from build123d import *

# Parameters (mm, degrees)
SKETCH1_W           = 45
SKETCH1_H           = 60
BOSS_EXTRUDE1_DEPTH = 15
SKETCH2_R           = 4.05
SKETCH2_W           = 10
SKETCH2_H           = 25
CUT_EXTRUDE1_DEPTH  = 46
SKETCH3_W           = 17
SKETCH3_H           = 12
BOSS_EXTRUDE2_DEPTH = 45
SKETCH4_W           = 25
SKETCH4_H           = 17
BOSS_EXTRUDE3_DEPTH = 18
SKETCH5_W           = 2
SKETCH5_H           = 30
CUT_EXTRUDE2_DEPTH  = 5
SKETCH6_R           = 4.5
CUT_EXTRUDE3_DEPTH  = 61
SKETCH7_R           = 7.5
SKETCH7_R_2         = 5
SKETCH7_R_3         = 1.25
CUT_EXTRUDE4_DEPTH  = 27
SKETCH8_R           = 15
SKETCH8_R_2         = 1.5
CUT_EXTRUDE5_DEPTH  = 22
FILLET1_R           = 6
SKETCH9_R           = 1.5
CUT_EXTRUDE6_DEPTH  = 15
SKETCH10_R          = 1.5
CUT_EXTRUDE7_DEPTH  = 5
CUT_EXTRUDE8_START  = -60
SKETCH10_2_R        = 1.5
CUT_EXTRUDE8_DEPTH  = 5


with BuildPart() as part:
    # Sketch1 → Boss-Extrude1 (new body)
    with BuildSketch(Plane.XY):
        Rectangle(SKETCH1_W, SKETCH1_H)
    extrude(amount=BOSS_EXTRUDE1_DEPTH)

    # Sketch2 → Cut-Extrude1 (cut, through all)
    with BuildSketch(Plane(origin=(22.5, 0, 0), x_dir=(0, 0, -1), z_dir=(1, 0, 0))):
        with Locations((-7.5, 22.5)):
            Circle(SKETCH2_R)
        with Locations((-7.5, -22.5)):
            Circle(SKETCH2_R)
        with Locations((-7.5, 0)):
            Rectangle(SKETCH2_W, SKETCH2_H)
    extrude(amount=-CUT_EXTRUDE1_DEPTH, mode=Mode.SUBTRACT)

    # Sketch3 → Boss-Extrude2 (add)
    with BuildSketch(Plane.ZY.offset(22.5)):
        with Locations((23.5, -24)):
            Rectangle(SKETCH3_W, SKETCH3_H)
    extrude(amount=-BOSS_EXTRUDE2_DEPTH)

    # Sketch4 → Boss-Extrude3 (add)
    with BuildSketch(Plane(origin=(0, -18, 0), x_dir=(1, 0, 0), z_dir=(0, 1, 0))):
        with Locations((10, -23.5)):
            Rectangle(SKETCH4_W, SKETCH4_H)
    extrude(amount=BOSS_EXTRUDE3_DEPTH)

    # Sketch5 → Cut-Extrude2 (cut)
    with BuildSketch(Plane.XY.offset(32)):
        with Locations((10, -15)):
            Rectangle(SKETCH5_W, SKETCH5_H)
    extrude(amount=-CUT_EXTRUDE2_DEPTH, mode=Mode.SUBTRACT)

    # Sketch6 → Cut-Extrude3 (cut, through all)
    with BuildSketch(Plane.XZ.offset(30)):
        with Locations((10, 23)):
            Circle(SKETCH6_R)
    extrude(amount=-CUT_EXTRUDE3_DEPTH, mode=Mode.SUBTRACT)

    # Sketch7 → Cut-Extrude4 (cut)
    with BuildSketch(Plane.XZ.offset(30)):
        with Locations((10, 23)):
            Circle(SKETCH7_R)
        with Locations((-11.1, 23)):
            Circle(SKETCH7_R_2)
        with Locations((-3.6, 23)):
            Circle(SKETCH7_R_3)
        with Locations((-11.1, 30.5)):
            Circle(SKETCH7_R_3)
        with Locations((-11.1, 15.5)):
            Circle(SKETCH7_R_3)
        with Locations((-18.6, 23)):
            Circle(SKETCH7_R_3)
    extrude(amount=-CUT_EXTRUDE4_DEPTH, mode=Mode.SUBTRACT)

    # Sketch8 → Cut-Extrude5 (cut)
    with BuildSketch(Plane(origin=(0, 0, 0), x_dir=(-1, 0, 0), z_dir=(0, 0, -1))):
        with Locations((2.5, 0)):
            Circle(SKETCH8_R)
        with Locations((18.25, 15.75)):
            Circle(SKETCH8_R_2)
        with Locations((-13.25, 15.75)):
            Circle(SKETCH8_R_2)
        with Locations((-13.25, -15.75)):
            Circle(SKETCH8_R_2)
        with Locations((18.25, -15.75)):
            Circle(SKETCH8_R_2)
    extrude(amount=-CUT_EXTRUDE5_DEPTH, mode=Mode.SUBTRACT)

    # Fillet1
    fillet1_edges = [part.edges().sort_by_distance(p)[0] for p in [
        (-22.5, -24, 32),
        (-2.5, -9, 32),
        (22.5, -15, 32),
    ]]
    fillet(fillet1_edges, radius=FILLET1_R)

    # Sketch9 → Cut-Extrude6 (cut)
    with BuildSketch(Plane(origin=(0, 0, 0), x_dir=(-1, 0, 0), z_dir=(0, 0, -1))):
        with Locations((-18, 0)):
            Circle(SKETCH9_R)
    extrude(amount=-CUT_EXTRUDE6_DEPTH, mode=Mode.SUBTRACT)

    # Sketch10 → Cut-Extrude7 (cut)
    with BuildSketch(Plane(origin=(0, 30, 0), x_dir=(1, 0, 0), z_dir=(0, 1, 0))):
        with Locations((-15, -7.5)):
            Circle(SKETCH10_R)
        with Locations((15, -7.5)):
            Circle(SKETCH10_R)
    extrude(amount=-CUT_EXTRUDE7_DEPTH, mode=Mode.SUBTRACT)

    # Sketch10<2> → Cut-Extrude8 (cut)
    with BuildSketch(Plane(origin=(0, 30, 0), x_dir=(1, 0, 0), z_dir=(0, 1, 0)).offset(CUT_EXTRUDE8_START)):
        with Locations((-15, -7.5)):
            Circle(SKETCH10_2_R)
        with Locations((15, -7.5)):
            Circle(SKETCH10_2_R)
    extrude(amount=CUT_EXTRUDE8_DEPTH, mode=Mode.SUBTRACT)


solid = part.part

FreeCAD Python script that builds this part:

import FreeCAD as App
import Part
import Sketcher

V = App.Vector


def edges_at(feature, points):
    """Names of the edges that pass closest to the given points."""
    edges = feature.Shape.Edges
    near = lambda p: min(range(len(edges)), key=lambda i: edges[i].distToShape(Part.Vertex(*p))[0])
    return sorted({f"Edge{near(p) + 1}" for p in points})

doc = App.newDocument("Part")
body = doc.addObject("PartDesign::Body", "Body")

# Sketch on XY plane
sketch1 = doc.addObject("Sketcher::SketchObject", "Sketch")
body.addObject(sketch1)
sketch1.AttachmentSupport = (doc.XY_Plane, [""])
sketch1.MapMode = "FlatFace"
sketch1.addGeometry(Part.LineSegment(V(-22, 30, 0), V(-22, -30, 0)), False)
sketch1.addGeometry(Part.LineSegment(V(-22, -30, 0), V(22, -30, 0)), False)
sketch1.addGeometry(Part.LineSegment(V(22, -30, 0), V(22, 30, 0)), False)
sketch1.addGeometry(Part.LineSegment(V(22, 30, 0), V(-22, 30, 0)), False)
sketch1.addConstraint(Sketcher.Constraint("Coincident", 0, 2, 1, 1))
sketch1.addConstraint(Sketcher.Constraint("Coincident", 1, 2, 2, 1))
sketch1.addConstraint(Sketcher.Constraint("Coincident", 2, 2, 3, 1))
sketch1.addConstraint(Sketcher.Constraint("Coincident", 3, 2, 0, 1))
sketch1.addConstraint(Sketcher.Constraint("Vertical", 0))
sketch1.addConstraint(Sketcher.Constraint("Horizontal", 1))
sketch1.addConstraint(Sketcher.Constraint("Vertical", 2))
sketch1.addConstraint(Sketcher.Constraint("Horizontal", 3))
sketch1.addConstraint(Sketcher.Constraint("Symmetric", 0, 2, 2, 2, -1, 1))
sketch1.addConstraint(Sketcher.Constraint("DistanceX", 1, 1, 1, 2, 45.0))
sketch1.addConstraint(Sketcher.Constraint("DistanceY", 0, 2, 0, 1, 60.0))
pad1 = doc.addObject("PartDesign::Pad", "Pad")
body.addObject(pad1)
pad1.Profile = sketch1
pad1.Length = 15

# Sketch on YZ plane
sketch2 = doc.addObject("Sketcher::SketchObject", "Sketch001")
body.addObject(sketch2)
sketch2.AttachmentSupport = (doc.YZ_Plane, [""])
sketch2.MapMode = "FlatFace"
sketch2.AttachmentOffset = App.Placement(V(0, 0, 22.5), App.Rotation())
sketch2.addGeometry(Part.Circle(V(22.5, 7.5, 0), V(0, 0, 1), 4), False)
sketch2.addGeometry(Part.Circle(V(-22.5, 7.5, 0), V(0, 0, 1), 4), False)
sketch2.addGeometry(Part.LineSegment(V(12.5, 12.5, 0), V(-12.5, 12.5, 0)), False)
sketch2.addGeometry(Part.LineSegment(V(-12.5, 12.5, 0), V(-12.5, 2.5, 0)), False)
sketch2.addGeometry(Part.LineSegment(V(-12.5, 2.5, 0), V(12.5, 2.5, 0)), False)
sketch2.addGeometry(Part.LineSegment(V(12.5, 2.5, 0), V(12.5, 12.5, 0)), False)
sketch2.addConstraint(Sketcher.Constraint("Coincident", 2, 2, 3, 1))
sketch2.addConstraint(Sketcher.Constraint("Coincident", 3, 2, 4, 1))
sketch2.addConstraint(Sketcher.Constraint("Coincident", 4, 2, 5, 1))
sketch2.addConstraint(Sketcher.Constraint("Coincident", 5, 2, 2, 1))
sketch2.addConstraint(Sketcher.Constraint("Horizontal", 2))
sketch2.addConstraint(Sketcher.Constraint("Vertical", 3))
sketch2.addConstraint(Sketcher.Constraint("Horizontal", 4))
sketch2.addConstraint(Sketcher.Constraint("Vertical", 5))
sketch2.addConstraint(Sketcher.Constraint("Equal", 0, 1))
sketch2.addConstraint(Sketcher.Constraint("Symmetric", 0, 3, 1, 3, -2))
sketch2.addConstraint(Sketcher.Constraint("Diameter", 0, 8.1))
sketch2.addConstraint(Sketcher.Constraint("DistanceX", 2, 2, 2, 1, 25.0))
sketch2.addConstraint(Sketcher.Constraint("DistanceY", 3, 2, 3, 1, 10.0))
sketch2.addConstraint(Sketcher.Constraint("DistanceX", 1, 3, 0, 3, 45.0))
sketch2.addConstraint(Sketcher.Constraint("DistanceX", 1, 3, 2, 2, 10.0))
sketch2.addConstraint(Sketcher.Constraint("DistanceY", 1, 3, 2, 2, 5.0))
sketch2.addConstraint(Sketcher.Constraint("DistanceY", -1, 1, 0, 3, 7.5))
pocket1 = doc.addObject("PartDesign::Pocket", "Pocket")
body.addObject(pocket1)
pocket1.Profile = sketch2
pocket1.Type = "ThroughAll"

# Sketch on YZ plane
sketch3 = doc.addObject("Sketcher::SketchObject", "Sketch002")
body.addObject(sketch3)
sketch3.AttachmentSupport = (doc.YZ_Plane, [""])
sketch3.MapMode = "FlatFace"
sketch3.AttachmentOffset = App.Placement(V(0, 0, -22.5), App.Rotation())
sketch3.addGeometry(Part.LineSegment(V(-18, 15, 0), V(-30, 15, 0)), False)
sketch3.addGeometry(Part.LineSegment(V(-30, 15, 0), V(-30, 32, 0)), False)
sketch3.addGeometry(Part.LineSegment(V(-30, 32, 0), V(-18, 32, 0)), False)
sketch3.addGeometry(Part.LineSegment(V(-18, 32, 0), V(-18, 15, 0)), False)
sketch3.addConstraint(Sketcher.Constraint("Coincident", 0, 2, 1, 1))
sketch3.addConstraint(Sketcher.Constraint("Coincident", 1, 2, 2, 1))
sketch3.addConstraint(Sketcher.Constraint("Coincident", 2, 2, 3, 1))
sketch3.addConstraint(Sketcher.Constraint("Coincident", 3, 2, 0, 1))
sketch3.addConstraint(Sketcher.Constraint("Horizontal", 0))
sketch3.addConstraint(Sketcher.Constraint("Vertical", 1))
sketch3.addConstraint(Sketcher.Constraint("Horizontal", 2))
sketch3.addConstraint(Sketcher.Constraint("Vertical", 3))
sketch3.addConstraint(Sketcher.Constraint("DistanceX", 0, 2, 0, 1, 12.0))
sketch3.addConstraint(Sketcher.Constraint("DistanceY", 1, 1, 1, 2, 17.0))
sketch3.addConstraint(Sketcher.Constraint("DistanceX", 0, 2, -1, 1, 30.0))
sketch3.addConstraint(Sketcher.Constraint("DistanceY", -1, 1, 0, 2, 15.0))
pad2 = doc.addObject("PartDesign::Pad", "Pad001")
body.addObject(pad2)
pad2.Profile = sketch3
pad2.Length = 45

# Sketch on XZ plane
sketch4 = doc.addObject("Sketcher::SketchObject", "Sketch003")
body.addObject(sketch4)
sketch4.AttachmentSupport = (doc.XZ_Plane, [""])
sketch4.MapMode = "FlatFace"
sketch4.AttachmentOffset = App.Placement(V(0, 0, 18), App.Rotation())
sketch4.addGeometry(Part.LineSegment(V(-2, 15, 0), V(-2, 32, 0)), False)
sketch4.addGeometry(Part.LineSegment(V(-2, 32, 0), V(22, 32, 0)), False)
sketch4.addGeometry(Part.LineSegment(V(22, 32, 0), V(22, 15, 0)), False)
sketch4.addGeometry(Part.LineSegment(V(22, 15, 0), V(-2, 15, 0)), False)
sketch4.addConstraint(Sketcher.Constraint("Coincident", 0, 2, 1, 1))
sketch4.addConstraint(Sketcher.Constraint("Coincident", 1, 2, 2, 1))
sketch4.addConstraint(Sketcher.Constraint("Coincident", 2, 2, 3, 1))
sketch4.addConstraint(Sketcher.Constraint("Coincident", 3, 2, 0, 1))
sketch4.addConstraint(Sketcher.Constraint("Vertical", 0))
sketch4.addConstraint(Sketcher.Constraint("Horizontal", 1))
sketch4.addConstraint(Sketcher.Constraint("Vertical", 2))
sketch4.addConstraint(Sketcher.Constraint("Horizontal", 3))
sketch4.addConstraint(Sketcher.Constraint("DistanceX", 1, 1, 1, 2, 25.0))
sketch4.addConstraint(Sketcher.Constraint("DistanceY", 0, 1, 0, 2, 17.0))
sketch4.addConstraint(Sketcher.Constraint("DistanceY", -1, 1, 0, 2, 32.0))
sketch4.addConstraint(Sketcher.Constraint("DistanceX", 0, 2, -1, 1, 2.5))
pad3 = doc.addObject("PartDesign::Pad", "Pad002")
body.addObject(pad3)
pad3.Profile = sketch4
pad3.Length = 18
pad3.Reversed = True

# Sketch on XY plane
sketch5 = doc.addObject("Sketcher::SketchObject", "Sketch004")
body.addObject(sketch5)
sketch5.AttachmentSupport = (doc.XY_Plane, [""])
sketch5.MapMode = "FlatFace"
sketch5.AttachmentOffset = App.Placement(V(0, 0, 32), App.Rotation())
sketch5.addGeometry(Part.LineSegment(V(9, 0, 0), V(9, -30, 0)), False)
sketch5.addGeometry(Part.LineSegment(V(9, -30, 0), V(11, -30, 0)), False)
sketch5.addGeometry(Part.LineSegment(V(11, -30, 0), V(11, 0, 0)), False)
sketch5.addGeometry(Part.LineSegment(V(11, 0, 0), V(9, 0, 0)), False)
sketch5.addConstraint(Sketcher.Constraint("Coincident", 0, 2, 1, 1))
sketch5.addConstraint(Sketcher.Constraint("Coincident", 1, 2, 2, 1))
sketch5.addConstraint(Sketcher.Constraint("Coincident", 2, 2, 3, 1))
sketch5.addConstraint(Sketcher.Constraint("Coincident", 3, 2, 0, 1))
sketch5.addConstraint(Sketcher.Constraint("Vertical", 0))
sketch5.addConstraint(Sketcher.Constraint("Horizontal", 1))
sketch5.addConstraint(Sketcher.Constraint("Vertical", 2))
sketch5.addConstraint(Sketcher.Constraint("Horizontal", 3))
sketch5.addConstraint(Sketcher.Constraint("PointOnObject", 2, 2, -1))
sketch5.addConstraint(Sketcher.Constraint("DistanceX", 1, 1, 1, 2, 2.0))
sketch5.addConstraint(Sketcher.Constraint("DistanceY", 0, 2, 0, 1, 30.0))
sketch5.addConstraint(Sketcher.Constraint("DistanceX", -1, 1, 0, 2, 9.0))
pocket2 = doc.addObject("PartDesign::Pocket", "Pocket001")
body.addObject(pocket2)
pocket2.Profile = sketch5
pocket2.Length = 5

# Sketch on XZ plane
sketch6 = doc.addObject("Sketcher::SketchObject", "Sketch005")
body.addObject(sketch6)
sketch6.AttachmentSupport = (doc.XZ_Plane, [""])
sketch6.MapMode = "FlatFace"
sketch6.AttachmentOffset = App.Placement(V(0, 0, 30), App.Rotation())
sketch6.addGeometry(Part.Circle(V(10, 23, 0), V(0, 0, 1), 4.5), False)
sketch6.addConstraint(Sketcher.Constraint("Diameter", 0, 9.0))
sketch6.addConstraint(Sketcher.Constraint("DistanceX", -1, 1, 0, 3, 10.0))
sketch6.addConstraint(Sketcher.Constraint("DistanceY", -1, 1, 0, 3, 23.0))
pocket3 = doc.addObject("PartDesign::Pocket", "Pocket002")
body.addObject(pocket3)
pocket3.Profile = sketch6
pocket3.Type = "ThroughAll"

# Sketch on XZ plane
sketch7 = doc.addObject("Sketcher::SketchObject", "Sketch006")
body.addObject(sketch7)
sketch7.AttachmentSupport = (doc.XZ_Plane, [""])
sketch7.MapMode = "FlatFace"
sketch7.AttachmentOffset = App.Placement(V(0, 0, 30), App.Rotation())
sketch7.addGeometry(Part.Circle(V(10, 23, 0), V(0, 0, 1), 7.5), False)
sketch7.addGeometry(Part.Circle(V(-11.1, 23, 0), V(0, 0, 1), 5), False)
sketch7.addGeometry(Part.Circle(V(-3.6, 23, 0), V(0, 0, 1), 1.2), False)
sketch7.addGeometry(Part.Circle(V(-11.1, 30.5, 0), V(0, 0, 1), 1.2), False)
sketch7.addGeometry(Part.Circle(V(-11.1, 15.5, 0), V(0, 0, 1), 1.2), False)
sketch7.addGeometry(Part.Circle(V(-18.6, 23, 0), V(0, 0, 1), 1.2), False)
sketch7.addConstraint(Sketcher.Constraint("Equal", 2, 3))
sketch7.addConstraint(Sketcher.Constraint("Equal", 3, 4))
sketch7.addConstraint(Sketcher.Constraint("Equal", 4, 5))
sketch7.addConstraint(Sketcher.Constraint("Horizontal", 0, 3, 1, 3))
sketch7.addConstraint(Sketcher.Constraint("Horizontal", 1, 3, 2, 3))
sketch7.addConstraint(Sketcher.Constraint("Horizontal", 2, 3, 5, 3))
sketch7.addConstraint(Sketcher.Constraint("Vertical", 1, 3, 3, 3))
sketch7.addConstraint(Sketcher.Constraint("Vertical", 3, 3, 4, 3))
sketch7.addConstraint(Sketcher.Constraint("Diameter", 0, 15.0))
sketch7.addConstraint(Sketcher.Constraint("Diameter", 1, 10.0))
sketch7.addConstraint(Sketcher.Constraint("Diameter", 2, 2.5))
sketch7.addConstraint(Sketcher.Constraint("DistanceX", -1, 1, 0, 3, 10.0))
sketch7.addConstraint(Sketcher.Constraint("DistanceY", -1, 1, 0, 3, 23.0))
sketch7.addConstraint(Sketcher.Constraint("DistanceY", 4, 3, 3, 3, 15.0))
sketch7.addConstraint(Sketcher.Constraint("DistanceX", 5, 3, 2, 3, 15.0))
sketch7.addConstraint(Sketcher.Constraint("DistanceX", 1, 3, -1, 1, 11.1))
sketch7.addConstraint(Sketcher.Constraint("DistanceX", 2, 3, -1, 1, 3.6))
sketch7.addConstraint(Sketcher.Constraint("DistanceY", -1, 1, 3, 3, 30.5))
pocket4 = doc.addObject("PartDesign::Pocket", "Pocket003")
body.addObject(pocket4)
pocket4.Profile = sketch7
pocket4.Length = 27

# Sketch on XY plane
sketch8 = doc.addObject("Sketcher::SketchObject", "Sketch007")
body.addObject(sketch8)
sketch8.AttachmentSupport = (doc.XY_Plane, [""])
sketch8.MapMode = "FlatFace"
sketch8.addGeometry(Part.Circle(V(-2.5, 0, 0), V(0, 0, 1), 15), False)
sketch8.addGeometry(Part.Circle(V(-18.2, 15.8, 0), V(0, 0, 1), 1.5), False)
sketch8.addGeometry(Part.Circle(V(13.2, 15.8, 0), V(0, 0, 1), 1.5), False)
sketch8.addGeometry(Part.Circle(V(13.2, -15.8, 0), V(0, 0, 1), 1.5), False)
sketch8.addGeometry(Part.Circle(V(-18.2, -15.8, 0), V(0, 0, 1), 1.5), False)
sketch8.addConstraint(Sketcher.Constraint("Equal", 1, 2))
sketch8.addConstraint(Sketcher.Constraint("Equal", 2, 3))
sketch8.addConstraint(Sketcher.Constraint("Equal", 3, 4))
sketch8.addConstraint(Sketcher.Constraint("Symmetric", 2, 3, 3, 3, -1))
sketch8.addConstraint(Sketcher.Constraint("Symmetric", 1, 3, 4, 3, -1))
sketch8.addConstraint(Sketcher.Constraint("PointOnObject", 0, 3, -1))
sketch8.addConstraint(Sketcher.Constraint("Horizontal", 1, 3, 2, 3))
sketch8.addConstraint(Sketcher.Constraint("Diameter", 0, 30.0))
sketch8.addConstraint(Sketcher.Constraint("Diameter", 1, 3.0))
sketch8.addConstraint(Sketcher.Constraint("DistanceX", 0, 3, -1, 1, 2.5))
sketch8.addConstraint(Sketcher.Constraint("DistanceX", 1, 3, 2, 3, 31.5))
sketch8.addConstraint(Sketcher.Constraint("DistanceY", 3, 3, 2, 3, 31.5))
sketch8.addConstraint(Sketcher.Constraint("DistanceX", 1, 3, -1, 1, 18.25))
pocket5 = doc.addObject("PartDesign::Pocket", "Pocket004")
body.addObject(pocket5)
pocket5.Profile = sketch8
pocket5.Length = 22
pocket5.Reversed = True
doc.recompute()

fillet = doc.addObject("PartDesign::Fillet", "Fillet")
body.addObject(fillet)
fillet.Base = (pocket5, edges_at(pocket5, [(-22.5, -24, 32), (-2.5, -9, 32), (22.5, -15, 32)]))
fillet.Radius = 6

# Sketch on XY plane
sketch9 = doc.addObject("Sketcher::SketchObject", "Sketch008")
body.addObject(sketch9)
sketch9.AttachmentSupport = (doc.XY_Plane, [""])
sketch9.MapMode = "FlatFace"
sketch9.addGeometry(Part.Circle(V(18, 0, 0), V(0, 0, 1), 1.5), False)
sketch9.addConstraint(Sketcher.Constraint("PointOnObject", 0, 3, -1))
sketch9.addConstraint(Sketcher.Constraint("Diameter", 0, 3.0))
sketch9.addConstraint(Sketcher.Constraint("DistanceX", -1, 1, 0, 3, 18.0))
pocket6 = doc.addObject("PartDesign::Pocket", "Pocket005")
body.addObject(pocket6)
pocket6.Profile = sketch9
pocket6.Length = 15
pocket6.Reversed = True

# Sketch on XZ plane
sketch10 = doc.addObject("Sketcher::SketchObject", "Sketch009")
body.addObject(sketch10)
sketch10.AttachmentSupport = (doc.XZ_Plane, [""])
sketch10.MapMode = "FlatFace"
sketch10.AttachmentOffset = App.Placement(V(0, 0, -30), App.Rotation())
sketch10.addGeometry(Part.Circle(V(-15, 7.5, 0), V(0, 0, 1), 1.5), False)
sketch10.addGeometry(Part.Circle(V(15, 7.5, 0), V(0, 0, 1), 1.5), False)
sketch10.addConstraint(Sketcher.Constraint("Equal", 0, 1))
sketch10.addConstraint(Sketcher.Constraint("Symmetric", 0, 3, 1, 3, -2))
sketch10.addConstraint(Sketcher.Constraint("Diameter", 0, 3.0))
sketch10.addConstraint(Sketcher.Constraint("DistanceX", 0, 3, -1, 1, 15.0))
sketch10.addConstraint(Sketcher.Constraint("DistanceY", -1, 1, 0, 3, 7.5))
pocket7 = doc.addObject("PartDesign::Pocket", "Pocket006")
body.addObject(pocket7)
pocket7.Profile = sketch10
pocket7.Length = 5
pocket7.Reversed = True

# Sketch on XZ plane
sketch11 = doc.addObject("Sketcher::SketchObject", "Sketch010")
body.addObject(sketch11)
sketch11.AttachmentSupport = (doc.XZ_Plane, [""])
sketch11.MapMode = "FlatFace"
sketch11.AttachmentOffset = App.Placement(V(0, 0, 30), App.Rotation())
sketch11.addGeometry(Part.Circle(V(-15, 7.5, 0), V(0, 0, 1), 1.5), False)
sketch11.addGeometry(Part.Circle(V(15, 7.5, 0), V(0, 0, 1), 1.5), False)
sketch11.addConstraint(Sketcher.Constraint("Equal", 0, 1))
sketch11.addConstraint(Sketcher.Constraint("Symmetric", 0, 3, 1, 3, -2))
sketch11.addConstraint(Sketcher.Constraint("Diameter", 0, 3.0))
sketch11.addConstraint(Sketcher.Constraint("DistanceX", 0, 3, -1, 1, 15.0))
sketch11.addConstraint(Sketcher.Constraint("DistanceY", -1, 1, 0, 3, 7.5))
pocket8 = doc.addObject("PartDesign::Pocket", "Pocket007")
body.addObject(pocket8)
pocket8.Profile = sketch11
pocket8.Length = 5

doc.recompute()
